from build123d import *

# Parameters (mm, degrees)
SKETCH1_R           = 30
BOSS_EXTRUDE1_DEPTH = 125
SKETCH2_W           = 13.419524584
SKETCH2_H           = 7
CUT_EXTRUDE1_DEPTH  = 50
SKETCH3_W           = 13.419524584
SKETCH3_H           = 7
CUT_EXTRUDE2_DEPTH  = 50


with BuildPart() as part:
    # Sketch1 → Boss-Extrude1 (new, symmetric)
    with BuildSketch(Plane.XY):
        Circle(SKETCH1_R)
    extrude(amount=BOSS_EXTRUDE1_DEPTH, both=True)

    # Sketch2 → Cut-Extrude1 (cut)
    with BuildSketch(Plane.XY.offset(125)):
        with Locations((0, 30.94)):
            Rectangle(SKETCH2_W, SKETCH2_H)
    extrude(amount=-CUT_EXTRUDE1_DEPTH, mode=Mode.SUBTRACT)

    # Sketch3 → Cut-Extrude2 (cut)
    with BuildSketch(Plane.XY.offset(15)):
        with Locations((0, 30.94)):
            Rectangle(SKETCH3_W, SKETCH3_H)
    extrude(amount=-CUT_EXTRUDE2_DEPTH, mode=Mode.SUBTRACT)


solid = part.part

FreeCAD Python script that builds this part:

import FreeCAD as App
import Part
import Sketcher
from FreeCAD import Vector

doc = App.newDocument("Part")
body = doc.addObject("PartDesign::Body", "Body")

sketch1 = body.newObject("Sketcher::SketchObject", "Sketch")
sketch1.AttachmentSupport = (doc.getObject("XY_Plane"), [""])
sketch1.MapMode = "FlatFace"
sketch1.addGeometry(Part.Circle(Vector(0, 0, 0), Vector(0, 0, 1), 30), False)
sketch1.addConstraint(Sketcher.Constraint("Coincident", 0, 3, -1, 1))
sketch1.addConstraint(Sketcher.Constraint("Diameter", 0, 60.0))
pad1 = body.newObject("PartDesign::Pad", "Pad")
pad1.Profile = sketch1
pad1.Length = 250
pad1.Midplane = True

sketch2 = body.newObject("Sketcher::SketchObject", "Sketch001")
sketch2.AttachmentSupport = (doc.getObject("XY_Plane"), [""])
sketch2.MapMode = "FlatFace"
sketch2.AttachmentOffset = App.Placement(Vector(0, 0, 125), App.Rotation())
sketch2.addGeometry(Part.LineSegment(Vector(-6.709762, 34.44, 0), Vector(-6.709762, 27.44, 0)), False)
sketch2.addGeometry(Part.LineSegment(Vector(-6.709762, 27.44, 0), Vector(6.709762, 27.44, 0)), False)
sketch2.addGeometry(Part.LineSegment(Vector(6.709762, 27.44, 0), Vector(6.709762, 34.44, 0)), False)
sketch2.addGeometry(Part.LineSegment(Vector(6.709762, 34.44, 0), Vector(-6.709762, 34.44, 0)), False)
sketch2.addConstraint(Sketcher.Constraint("Coincident", 0, 2, 1, 1))
sketch2.addConstraint(Sketcher.Constraint("Coincident", 1, 2, 2, 1))
sketch2.addConstraint(Sketcher.Constraint("Coincident", 2, 2, 3, 1))
sketch2.addConstraint(Sketcher.Constraint("Coincident", 3, 2, 0, 1))
sketch2.addConstraint(Sketcher.Constraint("Vertical", 0))
sketch2.addConstraint(Sketcher.Constraint("Horizontal", 1))
sketch2.addConstraint(Sketcher.Constraint("Vertical", 2))
sketch2.addConstraint(Sketcher.Constraint("Horizontal", 3))
sketch2.addConstraint(Sketcher.Constraint("DistanceY", 0, 2, 0, 1, 7.0))
sketch2.addConstraint(Sketcher.Constraint("DistanceY", -1, 1, 0, 2, 27.44))
sketch2.addConstraint(Sketcher.Constraint("DistanceX", 1, 1, 1, 2, 13.419525))
sketch2.addConstraint(Sketcher.Constraint("DistanceX", 0, 2, -1, 1, 6.709762))
pocket1 = body.newObject("PartDesign::Pocket", "Pocket")
pocket1.Profile = sketch2
pocket1.Length = 50

sketch3 = body.newObject("Sketcher::SketchObject", "Sketch002")
sketch3.AttachmentSupport = (doc.getObject("XY_Plane"), [""])
sketch3.MapMode = "FlatFace"
sketch3.AttachmentOffset = App.Placement(Vector(0, 0, 15), App.Rotation())
sketch3.addGeometry(Part.LineSegment(Vector(-6.709762, 34.44, 0), Vector(-6.709762, 27.44, 0)), False)
sketch3.addGeometry(Part.LineSegment(Vector(-6.709762, 27.44, 0), Vector(6.709762, 27.44, 0)), False)
sketch3.addGeometry(Part.LineSegment(Vector(6.709762, 27.44, 0), Vector(6.709762, 34.44, 0)), False)
sketch3.addGeometry(Part.LineSegment(Vector(6.709762, 34.44, 0), Vector(-6.709762, 34.44, 0)), False)
sketch3.addConstraint(Sketcher.Constraint("Coincident", 0, 2, 1, 1))
sketch3.addConstraint(Sketcher.Constraint("Coincident", 1, 2, 2, 1))
sketch3.addConstraint(Sketcher.Constraint("Coincident", 2, 2, 3, 1))
sketch3.addConstraint(Sketcher.Constraint("Coincident", 3, 2, 0, 1))
sketch3.addConstraint(Sketcher.Constraint("Vertical", 0))
sketch3.addConstraint(Sketcher.Constraint("Horizontal", 1))
sketch3.addConstraint(Sketcher.Constraint("Vertical", 2))
sketch3.addConstraint(Sketcher.Constraint("Horizontal", 3))
sketch3.addConstraint(Sketcher.Constraint("DistanceY", 0, 2, 0, 1, 7.0))
sketch3.addConstraint(Sketcher.Constraint("DistanceY", -1, 1, 0, 2, 27.44))
sketch3.addConstraint(Sketcher.Constraint("DistanceX", 1, 1, 1, 2, 13.419525))
sketch3.addConstraint(Sketcher.Constraint("DistanceX", 0, 2, -1, 1, 6.709762))
pocket2 = body.newObject("PartDesign::Pocket", "Pocket001")
pocket2.Profile = sketch3
pocket2.Length = 50

doc.recompute()
